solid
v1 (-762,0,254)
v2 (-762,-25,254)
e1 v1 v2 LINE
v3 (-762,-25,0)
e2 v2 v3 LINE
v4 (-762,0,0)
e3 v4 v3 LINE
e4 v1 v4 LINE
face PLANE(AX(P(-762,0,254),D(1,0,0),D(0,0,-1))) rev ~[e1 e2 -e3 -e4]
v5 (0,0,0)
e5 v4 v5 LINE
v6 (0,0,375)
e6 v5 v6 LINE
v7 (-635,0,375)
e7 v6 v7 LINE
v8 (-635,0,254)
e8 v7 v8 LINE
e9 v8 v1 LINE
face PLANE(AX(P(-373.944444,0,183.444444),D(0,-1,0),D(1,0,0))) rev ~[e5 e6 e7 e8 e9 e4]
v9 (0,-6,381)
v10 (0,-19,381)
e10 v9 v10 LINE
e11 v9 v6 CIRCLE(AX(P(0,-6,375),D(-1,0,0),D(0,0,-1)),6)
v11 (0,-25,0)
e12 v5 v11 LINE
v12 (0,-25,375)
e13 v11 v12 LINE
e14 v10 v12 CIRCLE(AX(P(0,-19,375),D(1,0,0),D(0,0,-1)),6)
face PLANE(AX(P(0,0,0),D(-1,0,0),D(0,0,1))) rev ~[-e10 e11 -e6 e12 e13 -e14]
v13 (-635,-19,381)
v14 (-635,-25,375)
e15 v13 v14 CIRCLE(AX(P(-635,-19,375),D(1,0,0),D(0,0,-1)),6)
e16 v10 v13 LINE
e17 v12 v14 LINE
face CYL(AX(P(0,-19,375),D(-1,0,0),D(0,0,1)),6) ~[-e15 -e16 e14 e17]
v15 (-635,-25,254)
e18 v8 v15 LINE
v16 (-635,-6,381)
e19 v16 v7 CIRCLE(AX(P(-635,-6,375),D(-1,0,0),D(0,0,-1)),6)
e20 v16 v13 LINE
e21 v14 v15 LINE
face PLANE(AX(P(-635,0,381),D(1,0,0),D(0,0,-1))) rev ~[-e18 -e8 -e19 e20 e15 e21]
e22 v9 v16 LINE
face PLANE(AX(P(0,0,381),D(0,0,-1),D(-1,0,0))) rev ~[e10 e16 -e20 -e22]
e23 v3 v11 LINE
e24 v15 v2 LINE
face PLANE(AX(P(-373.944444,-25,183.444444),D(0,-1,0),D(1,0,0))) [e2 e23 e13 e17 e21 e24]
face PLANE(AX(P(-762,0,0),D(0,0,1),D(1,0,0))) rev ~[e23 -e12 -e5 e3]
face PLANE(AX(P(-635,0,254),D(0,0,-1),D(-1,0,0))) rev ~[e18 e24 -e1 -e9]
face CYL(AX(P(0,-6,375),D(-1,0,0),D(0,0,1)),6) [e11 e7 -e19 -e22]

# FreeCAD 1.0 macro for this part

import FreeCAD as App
import Part
import Sketcher
Q = App.Units.Quantity


def edges_at(feature, points):
    """Names of the edges that pass closest to the given points."""
    edges = feature.Shape.Edges
    near = lambda p: min(range(len(edges)), key=lambda i: edges[i].distToShape(Part.Vertex(*p))[0])
    return sorted({f"Edge{near(p) + 1}" for p in points})


def add_polygon(sketch, points):
    """Adds a closed chain of lines whose ends are joined by coincident constraints."""
    first, n = sketch.GeometryCount, len(points)
    for a, b in zip(points, points[1:] + points[:1]):
        sketch.addGeometry(Part.LineSegment(App.Vector(*a, 0), App.Vector(*b, 0)), False)
    for i in range(n):
        sketch.addConstraint(Sketcher.Constraint("Coincident", first + i, 2, first + (i + 1) % n, 1))

doc = App.newDocument("Part")
body = doc.addObject("PartDesign::Body", "Body")

# Sketch on XZ plane
sketch1 = doc.addObject("Sketcher::SketchObject", "Sketch")
body.addObject(sketch1)
sketch1.AttachmentSupport = (doc.XZ_Plane, [""])
sketch1.MapMode = "FlatFace"
add_polygon(sketch1, [(0, 381), (-635, 381), (-635, 254), (-762, 254), (-762, 0), (0, 0)])  # lines 0-5
sketch1.addConstraint(Sketcher.Constraint("Horizontal", 0))
sketch1.addConstraint(Sketcher.Constraint("Vertical", 1))
sketch1.addConstraint(Sketcher.Constraint("Horizontal", 2))
sketch1.addConstraint(Sketcher.Constraint("Vertical", 3))
sketch1.addConstraint(Sketcher.Constraint("Horizontal", 4))
sketch1.addConstraint(Sketcher.Constraint("Vertical", 5))
sketch1.addConstraint(Sketcher.Constraint("Coincident", 4, 2, -1, 1))
sketch1.addConstraint(Sketcher.Constraint("Equal", 2, 1))
sketch1.addConstraint(Sketcher.Constraint("DistanceX", 0, 2, 0, 1, Q("25 in")))
sketch1.addConstraint(Sketcher.Constraint("DistanceX", 2, 2, 2, 1, Q("5 in")))
sketch1.addConstraint(Sketcher.Constraint("DistanceY", 3, 2, 3, 1, Q("10 in")))
pad1 = doc.addObject("PartDesign::Pad", "Pad")
body.addObject(pad1)
pad1.Profile = sketch1
pad1.Length = 25
doc.recompute()

fillet = doc.addObject("PartDesign::Fillet", "Fillet")
body.addObject(fillet)
fillet.Base = (pad1, edges_at(pad1, [(-317.5, -25, 381)]))
fillet.Radius = 6
doc.recompute()

fillet2 = doc.addObject("PartDesign::Fillet", "Fillet001")
body.addObject(fillet2)
fillet2.Base = (fillet, edges_at(fillet, [(-317.5, 0, 381)]))
fillet2.Radius = 6

doc.recompute()
